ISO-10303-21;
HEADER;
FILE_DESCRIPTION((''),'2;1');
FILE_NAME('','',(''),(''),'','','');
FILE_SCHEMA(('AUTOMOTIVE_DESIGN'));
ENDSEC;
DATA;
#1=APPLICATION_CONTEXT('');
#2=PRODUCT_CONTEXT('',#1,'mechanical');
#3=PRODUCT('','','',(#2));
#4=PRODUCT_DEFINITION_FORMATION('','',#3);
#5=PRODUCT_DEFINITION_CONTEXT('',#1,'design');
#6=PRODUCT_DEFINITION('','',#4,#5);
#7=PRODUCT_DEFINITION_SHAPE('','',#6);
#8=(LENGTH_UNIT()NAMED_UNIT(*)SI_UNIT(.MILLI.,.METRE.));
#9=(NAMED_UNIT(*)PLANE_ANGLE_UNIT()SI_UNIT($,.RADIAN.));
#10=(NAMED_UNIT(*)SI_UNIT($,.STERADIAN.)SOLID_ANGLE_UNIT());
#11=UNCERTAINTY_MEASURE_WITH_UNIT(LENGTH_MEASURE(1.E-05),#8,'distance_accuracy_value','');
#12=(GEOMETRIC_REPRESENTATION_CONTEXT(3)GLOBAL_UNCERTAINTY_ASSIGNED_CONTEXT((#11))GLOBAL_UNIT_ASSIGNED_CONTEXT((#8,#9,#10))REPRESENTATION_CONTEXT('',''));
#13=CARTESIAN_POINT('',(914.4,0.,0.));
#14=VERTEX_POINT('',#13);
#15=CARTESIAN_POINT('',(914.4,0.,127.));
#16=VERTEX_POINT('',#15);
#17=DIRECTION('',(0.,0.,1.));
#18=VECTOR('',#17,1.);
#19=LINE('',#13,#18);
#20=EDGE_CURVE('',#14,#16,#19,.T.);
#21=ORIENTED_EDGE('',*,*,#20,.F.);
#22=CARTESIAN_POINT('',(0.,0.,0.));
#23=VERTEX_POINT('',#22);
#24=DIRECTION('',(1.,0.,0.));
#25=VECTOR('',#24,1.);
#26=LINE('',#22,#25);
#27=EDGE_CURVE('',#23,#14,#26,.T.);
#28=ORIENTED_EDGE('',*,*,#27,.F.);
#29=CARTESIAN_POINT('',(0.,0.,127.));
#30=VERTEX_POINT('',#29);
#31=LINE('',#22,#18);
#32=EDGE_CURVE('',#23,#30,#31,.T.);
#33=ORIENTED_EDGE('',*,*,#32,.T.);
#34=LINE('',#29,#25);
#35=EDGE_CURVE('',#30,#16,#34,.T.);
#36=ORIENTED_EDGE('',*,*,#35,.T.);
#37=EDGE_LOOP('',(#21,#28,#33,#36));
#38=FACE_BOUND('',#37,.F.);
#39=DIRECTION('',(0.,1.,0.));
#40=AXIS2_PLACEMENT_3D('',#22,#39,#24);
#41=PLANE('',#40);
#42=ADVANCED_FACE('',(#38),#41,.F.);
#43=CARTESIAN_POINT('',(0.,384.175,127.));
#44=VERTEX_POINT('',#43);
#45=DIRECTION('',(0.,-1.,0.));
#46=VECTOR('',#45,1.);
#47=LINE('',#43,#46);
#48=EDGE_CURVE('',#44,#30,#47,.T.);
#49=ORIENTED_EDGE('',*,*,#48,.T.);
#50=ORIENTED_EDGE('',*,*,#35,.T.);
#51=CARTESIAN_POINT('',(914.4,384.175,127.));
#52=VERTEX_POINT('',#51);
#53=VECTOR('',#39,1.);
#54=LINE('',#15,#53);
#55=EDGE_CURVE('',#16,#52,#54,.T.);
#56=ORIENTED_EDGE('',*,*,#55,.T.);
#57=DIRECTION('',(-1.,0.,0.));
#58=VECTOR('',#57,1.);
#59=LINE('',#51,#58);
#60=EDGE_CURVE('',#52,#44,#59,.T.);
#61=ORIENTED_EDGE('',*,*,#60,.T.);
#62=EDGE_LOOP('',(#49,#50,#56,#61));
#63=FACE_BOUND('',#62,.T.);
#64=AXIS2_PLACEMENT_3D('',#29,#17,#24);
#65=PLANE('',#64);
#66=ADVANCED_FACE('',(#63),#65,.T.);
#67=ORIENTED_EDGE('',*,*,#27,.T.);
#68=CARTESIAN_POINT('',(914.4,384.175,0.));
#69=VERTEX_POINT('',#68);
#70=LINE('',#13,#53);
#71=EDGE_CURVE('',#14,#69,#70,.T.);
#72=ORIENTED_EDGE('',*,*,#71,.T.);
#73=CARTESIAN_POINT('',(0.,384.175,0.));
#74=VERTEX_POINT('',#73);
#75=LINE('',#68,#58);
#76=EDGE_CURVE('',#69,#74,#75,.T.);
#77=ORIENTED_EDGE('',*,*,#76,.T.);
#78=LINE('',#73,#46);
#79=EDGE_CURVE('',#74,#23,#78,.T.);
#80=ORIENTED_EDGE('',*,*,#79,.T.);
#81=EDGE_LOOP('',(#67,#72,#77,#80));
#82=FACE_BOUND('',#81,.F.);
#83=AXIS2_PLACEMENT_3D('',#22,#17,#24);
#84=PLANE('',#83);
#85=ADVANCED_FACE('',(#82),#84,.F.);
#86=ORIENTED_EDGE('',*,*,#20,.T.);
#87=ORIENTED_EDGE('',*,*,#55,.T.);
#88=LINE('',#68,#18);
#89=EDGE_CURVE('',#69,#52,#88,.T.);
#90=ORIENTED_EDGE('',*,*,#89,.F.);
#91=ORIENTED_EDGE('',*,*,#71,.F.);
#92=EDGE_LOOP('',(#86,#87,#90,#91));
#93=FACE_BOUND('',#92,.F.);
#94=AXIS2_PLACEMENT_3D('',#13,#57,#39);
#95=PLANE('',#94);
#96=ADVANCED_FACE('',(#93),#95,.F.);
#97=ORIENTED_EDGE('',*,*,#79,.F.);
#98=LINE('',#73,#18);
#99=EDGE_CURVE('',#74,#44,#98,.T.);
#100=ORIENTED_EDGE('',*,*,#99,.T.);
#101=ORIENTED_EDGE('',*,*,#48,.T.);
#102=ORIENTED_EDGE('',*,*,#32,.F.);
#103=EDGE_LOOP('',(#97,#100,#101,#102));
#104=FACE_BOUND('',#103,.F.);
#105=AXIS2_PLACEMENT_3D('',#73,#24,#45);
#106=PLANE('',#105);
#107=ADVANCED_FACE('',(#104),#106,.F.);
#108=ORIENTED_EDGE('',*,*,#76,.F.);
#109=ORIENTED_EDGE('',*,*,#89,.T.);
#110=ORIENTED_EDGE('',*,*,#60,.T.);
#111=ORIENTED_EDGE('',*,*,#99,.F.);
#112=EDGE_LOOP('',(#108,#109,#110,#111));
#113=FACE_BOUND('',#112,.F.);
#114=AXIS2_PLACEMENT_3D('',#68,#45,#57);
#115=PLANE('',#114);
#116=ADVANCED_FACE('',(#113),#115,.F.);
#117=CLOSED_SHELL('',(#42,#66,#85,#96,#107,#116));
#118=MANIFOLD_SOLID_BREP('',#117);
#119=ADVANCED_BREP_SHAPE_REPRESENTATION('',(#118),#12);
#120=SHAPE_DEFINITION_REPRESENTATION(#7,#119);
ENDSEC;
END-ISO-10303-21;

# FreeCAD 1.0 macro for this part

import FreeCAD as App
import Part
import Sketcher
Q = App.Units.Quantity


def add_polygon(sketch, points):
    """Adds a closed chain of lines whose ends are joined by coincident constraints."""
    first, n = sketch.GeometryCount, len(points)
    for a, b in zip(points, points[1:] + points[:1]):
        sketch.addGeometry(Part.LineSegment(App.Vector(*a, 0), App.Vector(*b, 0)), False)
    for i in range(n):
        sketch.addConstraint(Sketcher.Constraint("Coincident", first + i, 2, first + (i + 1) % n, 1))

doc = App.newDocument("Part")
body = doc.addObject("PartDesign::Body", "Body")

# Sketch on XY plane
sketch1 = body.newObject("Sketcher::SketchObject", "Sketch")
sketch1.AttachmentSupport = (doc.getObject("XY_Plane"), [""])
sketch1.MapMode = "FlatFace"
add_polygon(sketch1, [(0, 384), (0, 0), (914, 0), (914, 384)])  # lines 0-3
sketch1.addConstraint(Sketcher.Constraint("Vertical", 0))
sketch1.addConstraint(Sketcher.Constraint("Horizontal", 1))
sketch1.addConstraint(Sketcher.Constraint("Vertical", 2))
sketch1.addConstraint(Sketcher.Constraint("Horizontal", 3))
sketch1.addConstraint(Sketcher.Constraint("Coincident", 0, 2, -1, 1))
sketch1.addConstraint(Sketcher.Constraint("DistanceX", 1, 1, 1, 2, Q("36 in")))
sketch1.addConstraint(Sketcher.Constraint("DistanceY", 0, 2, 0, 1, Q("15.125 in")))
pad1 = body.newObject("PartDesign::Pad", "Pad")
pad1.Profile = sketch1
pad1.Length = Q("5 in")

doc.recompute()
